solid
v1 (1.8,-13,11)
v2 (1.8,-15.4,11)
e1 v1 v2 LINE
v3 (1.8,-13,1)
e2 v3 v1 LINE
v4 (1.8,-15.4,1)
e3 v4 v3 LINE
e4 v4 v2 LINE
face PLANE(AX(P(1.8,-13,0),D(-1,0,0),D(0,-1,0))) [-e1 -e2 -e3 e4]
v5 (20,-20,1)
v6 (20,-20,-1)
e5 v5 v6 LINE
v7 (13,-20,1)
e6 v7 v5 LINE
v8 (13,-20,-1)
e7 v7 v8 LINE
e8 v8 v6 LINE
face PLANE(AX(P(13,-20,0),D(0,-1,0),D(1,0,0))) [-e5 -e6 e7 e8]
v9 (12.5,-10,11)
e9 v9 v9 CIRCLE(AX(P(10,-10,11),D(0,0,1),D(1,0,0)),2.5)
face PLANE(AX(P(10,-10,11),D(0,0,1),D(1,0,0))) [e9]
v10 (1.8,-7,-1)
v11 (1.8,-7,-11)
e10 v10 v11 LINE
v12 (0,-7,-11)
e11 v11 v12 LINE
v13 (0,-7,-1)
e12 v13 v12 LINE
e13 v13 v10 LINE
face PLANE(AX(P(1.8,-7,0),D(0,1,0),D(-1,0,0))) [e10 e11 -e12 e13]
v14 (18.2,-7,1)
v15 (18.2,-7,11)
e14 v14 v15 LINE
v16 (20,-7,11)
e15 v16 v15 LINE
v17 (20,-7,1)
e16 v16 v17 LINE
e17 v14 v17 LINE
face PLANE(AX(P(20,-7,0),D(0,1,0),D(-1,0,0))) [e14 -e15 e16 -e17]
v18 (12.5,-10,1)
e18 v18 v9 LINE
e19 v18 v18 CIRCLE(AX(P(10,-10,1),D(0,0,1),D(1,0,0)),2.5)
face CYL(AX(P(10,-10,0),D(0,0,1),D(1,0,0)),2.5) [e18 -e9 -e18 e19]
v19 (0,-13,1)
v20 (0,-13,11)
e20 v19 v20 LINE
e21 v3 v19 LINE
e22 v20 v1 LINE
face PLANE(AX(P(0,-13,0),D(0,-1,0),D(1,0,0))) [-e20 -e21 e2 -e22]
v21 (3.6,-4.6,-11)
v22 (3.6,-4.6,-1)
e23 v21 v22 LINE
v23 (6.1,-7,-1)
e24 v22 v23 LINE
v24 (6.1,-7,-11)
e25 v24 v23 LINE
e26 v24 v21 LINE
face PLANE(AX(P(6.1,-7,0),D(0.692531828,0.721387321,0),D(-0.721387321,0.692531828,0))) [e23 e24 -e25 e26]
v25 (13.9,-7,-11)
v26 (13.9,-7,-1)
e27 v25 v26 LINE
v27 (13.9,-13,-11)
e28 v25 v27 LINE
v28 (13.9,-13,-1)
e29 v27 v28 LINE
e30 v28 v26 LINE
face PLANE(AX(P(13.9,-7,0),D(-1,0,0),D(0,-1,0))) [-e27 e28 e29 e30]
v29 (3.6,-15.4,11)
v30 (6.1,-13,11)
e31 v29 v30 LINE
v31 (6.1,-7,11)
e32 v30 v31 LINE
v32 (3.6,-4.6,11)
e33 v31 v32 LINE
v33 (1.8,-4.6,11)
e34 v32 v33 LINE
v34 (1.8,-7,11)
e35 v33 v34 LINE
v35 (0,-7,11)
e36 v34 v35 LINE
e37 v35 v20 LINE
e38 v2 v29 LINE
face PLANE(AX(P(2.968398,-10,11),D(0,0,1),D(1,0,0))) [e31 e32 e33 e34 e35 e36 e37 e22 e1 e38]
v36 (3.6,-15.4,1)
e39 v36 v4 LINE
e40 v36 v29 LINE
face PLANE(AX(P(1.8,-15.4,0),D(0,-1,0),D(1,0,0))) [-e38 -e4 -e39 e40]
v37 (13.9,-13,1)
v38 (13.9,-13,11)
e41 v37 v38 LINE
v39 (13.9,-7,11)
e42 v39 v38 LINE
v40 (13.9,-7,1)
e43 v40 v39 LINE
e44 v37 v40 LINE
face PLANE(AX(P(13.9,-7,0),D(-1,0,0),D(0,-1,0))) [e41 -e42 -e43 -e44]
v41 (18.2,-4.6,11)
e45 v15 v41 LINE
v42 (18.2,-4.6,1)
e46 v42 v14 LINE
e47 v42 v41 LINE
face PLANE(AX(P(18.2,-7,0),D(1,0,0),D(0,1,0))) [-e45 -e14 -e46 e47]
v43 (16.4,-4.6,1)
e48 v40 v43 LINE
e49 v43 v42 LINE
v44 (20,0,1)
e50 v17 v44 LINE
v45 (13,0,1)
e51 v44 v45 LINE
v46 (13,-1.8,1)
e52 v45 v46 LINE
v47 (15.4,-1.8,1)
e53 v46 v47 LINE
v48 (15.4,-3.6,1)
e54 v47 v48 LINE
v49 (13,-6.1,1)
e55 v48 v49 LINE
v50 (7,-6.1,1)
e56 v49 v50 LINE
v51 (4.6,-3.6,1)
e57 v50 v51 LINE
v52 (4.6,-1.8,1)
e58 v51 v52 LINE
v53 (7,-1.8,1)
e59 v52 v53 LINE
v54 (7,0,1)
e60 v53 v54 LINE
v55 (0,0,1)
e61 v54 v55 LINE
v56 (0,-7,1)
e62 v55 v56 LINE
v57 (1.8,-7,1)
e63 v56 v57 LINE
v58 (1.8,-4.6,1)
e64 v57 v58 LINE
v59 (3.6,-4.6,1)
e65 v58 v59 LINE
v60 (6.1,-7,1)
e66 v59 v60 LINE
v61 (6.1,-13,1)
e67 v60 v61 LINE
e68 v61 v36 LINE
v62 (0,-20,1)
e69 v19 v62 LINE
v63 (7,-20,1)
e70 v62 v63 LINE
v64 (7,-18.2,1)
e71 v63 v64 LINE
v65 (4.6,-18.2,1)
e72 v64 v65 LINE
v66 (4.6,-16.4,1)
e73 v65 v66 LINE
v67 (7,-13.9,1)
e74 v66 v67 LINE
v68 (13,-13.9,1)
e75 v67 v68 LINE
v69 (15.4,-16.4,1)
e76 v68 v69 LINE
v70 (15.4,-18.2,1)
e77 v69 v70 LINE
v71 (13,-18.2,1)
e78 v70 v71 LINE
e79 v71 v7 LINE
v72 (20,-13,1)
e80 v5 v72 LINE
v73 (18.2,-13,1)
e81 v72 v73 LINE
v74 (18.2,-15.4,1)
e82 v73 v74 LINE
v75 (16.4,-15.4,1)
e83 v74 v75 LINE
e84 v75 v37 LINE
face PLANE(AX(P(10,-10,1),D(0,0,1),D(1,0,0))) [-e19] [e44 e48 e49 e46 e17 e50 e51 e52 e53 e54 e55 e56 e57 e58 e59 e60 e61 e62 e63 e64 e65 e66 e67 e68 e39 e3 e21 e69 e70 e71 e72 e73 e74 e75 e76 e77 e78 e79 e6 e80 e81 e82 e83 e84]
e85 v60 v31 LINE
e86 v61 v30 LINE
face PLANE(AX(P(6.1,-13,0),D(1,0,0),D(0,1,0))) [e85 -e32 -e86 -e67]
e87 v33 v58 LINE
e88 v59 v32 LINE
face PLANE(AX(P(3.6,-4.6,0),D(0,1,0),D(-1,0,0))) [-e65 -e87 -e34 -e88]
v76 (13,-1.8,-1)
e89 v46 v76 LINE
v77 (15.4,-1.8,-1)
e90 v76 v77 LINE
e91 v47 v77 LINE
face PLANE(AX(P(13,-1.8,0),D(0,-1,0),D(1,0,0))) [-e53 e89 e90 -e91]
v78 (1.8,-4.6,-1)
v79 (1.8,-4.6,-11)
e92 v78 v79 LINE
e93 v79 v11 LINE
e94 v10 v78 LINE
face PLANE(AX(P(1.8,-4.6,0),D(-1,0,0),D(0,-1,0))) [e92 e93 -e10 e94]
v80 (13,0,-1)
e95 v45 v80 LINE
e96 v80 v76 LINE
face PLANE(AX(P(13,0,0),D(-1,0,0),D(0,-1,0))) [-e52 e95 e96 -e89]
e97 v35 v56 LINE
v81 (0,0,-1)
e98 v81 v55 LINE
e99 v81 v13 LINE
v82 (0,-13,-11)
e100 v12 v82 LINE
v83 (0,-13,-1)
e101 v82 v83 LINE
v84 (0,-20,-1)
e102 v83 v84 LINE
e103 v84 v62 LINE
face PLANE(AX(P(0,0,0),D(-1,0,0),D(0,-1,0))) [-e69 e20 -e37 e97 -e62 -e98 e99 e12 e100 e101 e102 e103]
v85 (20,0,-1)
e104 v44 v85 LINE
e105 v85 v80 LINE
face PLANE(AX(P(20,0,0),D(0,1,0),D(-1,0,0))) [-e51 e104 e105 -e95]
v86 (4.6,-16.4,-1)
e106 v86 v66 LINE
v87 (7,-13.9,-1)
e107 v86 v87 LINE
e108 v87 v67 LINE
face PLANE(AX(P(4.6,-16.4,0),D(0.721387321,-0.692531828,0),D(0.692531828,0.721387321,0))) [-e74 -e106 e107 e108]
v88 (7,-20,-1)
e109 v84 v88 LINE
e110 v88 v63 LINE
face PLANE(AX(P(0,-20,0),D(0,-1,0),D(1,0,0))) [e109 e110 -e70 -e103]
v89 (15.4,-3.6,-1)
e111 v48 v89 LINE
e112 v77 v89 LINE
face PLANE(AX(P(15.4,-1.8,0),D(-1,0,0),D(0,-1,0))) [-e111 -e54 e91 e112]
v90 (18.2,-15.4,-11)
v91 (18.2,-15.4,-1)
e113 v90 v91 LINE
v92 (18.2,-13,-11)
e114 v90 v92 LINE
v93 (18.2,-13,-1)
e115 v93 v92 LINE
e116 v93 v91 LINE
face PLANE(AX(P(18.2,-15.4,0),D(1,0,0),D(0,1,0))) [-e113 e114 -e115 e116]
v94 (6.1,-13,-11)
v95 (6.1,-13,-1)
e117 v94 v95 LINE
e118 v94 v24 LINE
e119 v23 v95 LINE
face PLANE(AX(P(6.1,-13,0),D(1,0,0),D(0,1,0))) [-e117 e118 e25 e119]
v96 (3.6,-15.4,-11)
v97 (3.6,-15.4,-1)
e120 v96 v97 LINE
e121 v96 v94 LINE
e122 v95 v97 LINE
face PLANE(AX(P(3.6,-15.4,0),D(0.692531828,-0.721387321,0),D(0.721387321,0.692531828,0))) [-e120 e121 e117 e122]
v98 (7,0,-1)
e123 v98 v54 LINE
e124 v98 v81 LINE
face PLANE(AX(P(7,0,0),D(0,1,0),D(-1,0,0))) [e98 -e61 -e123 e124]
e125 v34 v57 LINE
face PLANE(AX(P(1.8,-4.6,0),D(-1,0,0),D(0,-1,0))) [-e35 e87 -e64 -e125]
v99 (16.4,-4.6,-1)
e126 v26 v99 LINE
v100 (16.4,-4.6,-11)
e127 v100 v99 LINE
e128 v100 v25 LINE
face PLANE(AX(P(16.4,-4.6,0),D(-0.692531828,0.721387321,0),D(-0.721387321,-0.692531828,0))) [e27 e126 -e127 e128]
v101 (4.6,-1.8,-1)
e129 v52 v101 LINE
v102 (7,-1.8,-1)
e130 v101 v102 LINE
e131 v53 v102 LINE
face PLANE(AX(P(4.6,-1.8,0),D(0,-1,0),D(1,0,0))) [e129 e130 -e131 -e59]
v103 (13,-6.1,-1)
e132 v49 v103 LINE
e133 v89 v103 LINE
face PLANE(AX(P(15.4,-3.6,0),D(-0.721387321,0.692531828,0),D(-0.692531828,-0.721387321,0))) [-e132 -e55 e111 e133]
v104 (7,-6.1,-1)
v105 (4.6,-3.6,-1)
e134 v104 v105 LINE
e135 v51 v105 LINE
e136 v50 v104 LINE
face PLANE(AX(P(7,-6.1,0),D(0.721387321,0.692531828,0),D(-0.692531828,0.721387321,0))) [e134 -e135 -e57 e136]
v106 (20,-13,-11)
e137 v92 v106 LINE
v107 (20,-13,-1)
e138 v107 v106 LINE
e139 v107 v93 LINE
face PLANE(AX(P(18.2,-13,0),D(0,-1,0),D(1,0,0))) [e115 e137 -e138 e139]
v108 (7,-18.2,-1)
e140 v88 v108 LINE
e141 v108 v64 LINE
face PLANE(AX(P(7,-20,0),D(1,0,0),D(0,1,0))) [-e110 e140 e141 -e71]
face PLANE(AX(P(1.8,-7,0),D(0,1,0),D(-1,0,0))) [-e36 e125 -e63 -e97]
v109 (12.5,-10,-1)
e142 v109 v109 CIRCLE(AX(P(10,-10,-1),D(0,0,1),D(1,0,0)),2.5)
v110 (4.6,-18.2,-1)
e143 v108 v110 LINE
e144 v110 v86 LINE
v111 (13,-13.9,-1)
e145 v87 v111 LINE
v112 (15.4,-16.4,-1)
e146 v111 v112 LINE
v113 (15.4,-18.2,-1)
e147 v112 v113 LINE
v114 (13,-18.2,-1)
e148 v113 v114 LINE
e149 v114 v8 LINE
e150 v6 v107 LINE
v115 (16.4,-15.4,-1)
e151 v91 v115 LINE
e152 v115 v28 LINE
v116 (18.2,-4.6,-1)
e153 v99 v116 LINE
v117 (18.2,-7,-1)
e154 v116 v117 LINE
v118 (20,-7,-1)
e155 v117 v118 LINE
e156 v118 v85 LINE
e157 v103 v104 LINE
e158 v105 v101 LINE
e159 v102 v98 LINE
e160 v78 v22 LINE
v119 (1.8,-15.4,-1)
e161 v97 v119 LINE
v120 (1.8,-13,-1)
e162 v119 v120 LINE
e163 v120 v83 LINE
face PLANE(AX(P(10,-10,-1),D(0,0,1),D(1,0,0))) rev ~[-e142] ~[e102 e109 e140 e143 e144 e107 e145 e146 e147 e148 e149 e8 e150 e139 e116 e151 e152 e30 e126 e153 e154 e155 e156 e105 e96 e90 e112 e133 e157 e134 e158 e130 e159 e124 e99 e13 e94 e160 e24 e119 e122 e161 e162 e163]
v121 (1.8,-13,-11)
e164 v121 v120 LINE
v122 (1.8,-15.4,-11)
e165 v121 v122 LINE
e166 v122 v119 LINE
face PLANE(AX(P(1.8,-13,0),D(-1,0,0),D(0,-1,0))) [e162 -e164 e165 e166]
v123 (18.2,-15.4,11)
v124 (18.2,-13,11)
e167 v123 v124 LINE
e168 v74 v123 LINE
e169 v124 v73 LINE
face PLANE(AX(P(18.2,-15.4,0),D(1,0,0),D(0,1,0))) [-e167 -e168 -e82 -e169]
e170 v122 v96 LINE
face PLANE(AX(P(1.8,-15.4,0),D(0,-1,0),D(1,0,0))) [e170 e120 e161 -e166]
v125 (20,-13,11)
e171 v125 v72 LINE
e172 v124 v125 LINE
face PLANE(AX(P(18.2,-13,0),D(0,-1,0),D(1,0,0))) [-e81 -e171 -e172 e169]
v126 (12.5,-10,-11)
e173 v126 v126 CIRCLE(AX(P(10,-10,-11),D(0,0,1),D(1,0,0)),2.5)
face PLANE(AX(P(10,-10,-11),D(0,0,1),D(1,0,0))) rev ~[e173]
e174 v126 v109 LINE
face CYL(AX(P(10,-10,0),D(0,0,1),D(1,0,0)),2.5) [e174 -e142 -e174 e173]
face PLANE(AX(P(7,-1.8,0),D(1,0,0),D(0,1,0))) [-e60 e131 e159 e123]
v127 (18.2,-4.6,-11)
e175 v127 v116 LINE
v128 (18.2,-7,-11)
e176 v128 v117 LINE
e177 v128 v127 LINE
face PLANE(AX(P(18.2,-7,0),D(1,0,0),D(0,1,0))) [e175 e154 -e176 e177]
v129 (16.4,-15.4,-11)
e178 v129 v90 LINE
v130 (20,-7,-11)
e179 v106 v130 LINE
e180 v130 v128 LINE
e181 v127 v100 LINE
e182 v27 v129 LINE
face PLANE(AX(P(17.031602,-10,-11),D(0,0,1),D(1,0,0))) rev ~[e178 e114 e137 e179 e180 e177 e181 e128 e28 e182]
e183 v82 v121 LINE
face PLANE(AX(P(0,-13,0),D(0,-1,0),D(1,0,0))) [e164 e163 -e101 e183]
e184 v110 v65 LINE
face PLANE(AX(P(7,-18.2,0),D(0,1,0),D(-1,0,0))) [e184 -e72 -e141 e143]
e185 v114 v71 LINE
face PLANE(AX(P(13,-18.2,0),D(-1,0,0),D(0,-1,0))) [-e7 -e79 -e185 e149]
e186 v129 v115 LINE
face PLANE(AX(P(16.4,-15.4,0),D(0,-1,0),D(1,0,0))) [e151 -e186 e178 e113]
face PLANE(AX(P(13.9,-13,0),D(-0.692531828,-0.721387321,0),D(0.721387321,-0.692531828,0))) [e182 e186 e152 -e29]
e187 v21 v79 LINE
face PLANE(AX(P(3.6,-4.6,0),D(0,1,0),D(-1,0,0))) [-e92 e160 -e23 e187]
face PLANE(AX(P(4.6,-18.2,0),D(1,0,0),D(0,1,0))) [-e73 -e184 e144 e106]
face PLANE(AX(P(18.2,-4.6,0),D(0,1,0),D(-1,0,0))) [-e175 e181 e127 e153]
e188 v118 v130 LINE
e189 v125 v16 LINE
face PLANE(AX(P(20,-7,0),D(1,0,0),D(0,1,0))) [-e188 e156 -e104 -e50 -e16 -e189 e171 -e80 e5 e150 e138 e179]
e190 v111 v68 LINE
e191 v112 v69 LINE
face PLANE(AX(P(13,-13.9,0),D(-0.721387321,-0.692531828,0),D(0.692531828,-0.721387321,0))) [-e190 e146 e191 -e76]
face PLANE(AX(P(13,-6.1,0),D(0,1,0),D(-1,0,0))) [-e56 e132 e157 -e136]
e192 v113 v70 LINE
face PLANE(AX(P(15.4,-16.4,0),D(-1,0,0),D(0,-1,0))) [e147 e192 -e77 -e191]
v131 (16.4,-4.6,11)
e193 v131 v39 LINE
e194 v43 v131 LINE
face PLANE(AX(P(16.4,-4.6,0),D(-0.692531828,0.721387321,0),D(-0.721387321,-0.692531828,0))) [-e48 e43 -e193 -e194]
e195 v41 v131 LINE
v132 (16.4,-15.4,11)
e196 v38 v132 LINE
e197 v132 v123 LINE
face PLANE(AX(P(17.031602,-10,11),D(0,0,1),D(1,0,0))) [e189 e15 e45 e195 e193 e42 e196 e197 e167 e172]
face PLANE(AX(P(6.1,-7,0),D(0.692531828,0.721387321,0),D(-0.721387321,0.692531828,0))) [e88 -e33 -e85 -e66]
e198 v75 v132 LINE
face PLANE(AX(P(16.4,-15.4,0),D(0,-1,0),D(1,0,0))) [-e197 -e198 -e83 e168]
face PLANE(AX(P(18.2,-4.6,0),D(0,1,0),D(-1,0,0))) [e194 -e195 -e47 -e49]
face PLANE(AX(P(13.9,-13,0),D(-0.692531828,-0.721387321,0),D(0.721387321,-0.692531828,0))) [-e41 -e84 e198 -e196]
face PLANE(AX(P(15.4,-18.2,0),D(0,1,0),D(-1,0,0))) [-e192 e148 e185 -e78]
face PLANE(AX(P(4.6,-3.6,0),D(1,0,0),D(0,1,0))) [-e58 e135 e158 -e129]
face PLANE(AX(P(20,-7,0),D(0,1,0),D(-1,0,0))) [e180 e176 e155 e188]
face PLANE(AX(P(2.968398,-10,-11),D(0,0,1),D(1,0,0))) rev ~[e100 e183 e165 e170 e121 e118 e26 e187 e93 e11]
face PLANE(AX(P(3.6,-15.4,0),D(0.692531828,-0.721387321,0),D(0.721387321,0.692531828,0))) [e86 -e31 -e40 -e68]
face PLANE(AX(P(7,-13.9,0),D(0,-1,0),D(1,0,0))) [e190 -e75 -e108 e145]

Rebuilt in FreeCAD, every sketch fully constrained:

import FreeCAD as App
import Part
import Sketcher

V = App.Vector


def add_polygon(sketch, points):
    """Adds a closed chain of lines whose ends are joined by coincident constraints."""
    first, n = sketch.GeometryCount, len(points)
    for a, b in zip(points, points[1:] + points[:1]):
        sketch.addGeometry(Part.LineSegment(App.Vector(*a, 0), App.Vector(*b, 0)), False)
    for i in range(n):
        sketch.addConstraint(Sketcher.Constraint("Coincident", first + i, 2, first + (i + 1) % n, 1))

doc = App.newDocument("Part")
body = doc.addObject("PartDesign::Body", "Body")

# Sketch on XY plane
sketch1 = doc.addObject("Sketcher::SketchObject", "Sketch")
body.addObject(sketch1)
sketch1.AttachmentSupport = (doc.XY_Plane, [""])
sketch1.MapMode = "FlatFace"
add_polygon(sketch1, [(0, -7), (0, -13), (1.8, -13), (1.8, -15.4), (3.6, -15.4), (6.1, -13), (6.1, -7), (3.6, -4.6), (1.8, -4.6), (1.8, -7)])  # lines 0-9
sketch1.addConstraint([
    Sketcher.Constraint("Vertical", 0),
    Sketcher.Constraint("Horizontal", 1),
    Sketcher.Constraint("Vertical", 2),
    Sketcher.Constraint("Horizontal", 3),
    Sketcher.Constraint("Vertical", 5),
    Sketcher.Constraint("Horizontal", 7),
    Sketcher.Constraint("Vertical", 8),
    Sketcher.Constraint("Horizontal", 9),
    Sketcher.Constraint("PointOnObject", 0, 2, -2),
    Sketcher.Constraint("Horizontal", 1, 2, 4, 2),
    Sketcher.Constraint("Horizontal", 5, 2, 8, 2),
    Sketcher.Constraint("Vertical", 3, 2, 6, 2),
    Sketcher.Constraint("Vertical", 2, 2, 7, 2),
    Sketcher.Constraint("Equal", 1, 3),
    Sketcher.Constraint("Equal", 2, 8),
    Sketcher.Constraint("DistanceY", 0, 2, 0, 1, 6.0),
    Sketcher.Constraint("DistanceX", 1, 1, 1, 2, 1.8),
    Sketcher.Constraint("DistanceY", 2, 2, 2, 1, 2.4),
    Sketcher.Constraint("DistanceY", 0, 2, -1, 1, 13.0),
    Sketcher.Constraint("DistanceX", -1, 1, 4, 2, 6.1),
])
pad1 = doc.addObject("PartDesign::Pad", "Pad")
body.addObject(pad1)
pad1.Profile = sketch1
pad1.Length = 22
pad1.Midplane = True
body2 = doc.addObject("PartDesign::Body", "Body001")

# Sketch on XY plane
sketch2 = doc.addObject("Sketcher::SketchObject", "Sketch001")
body2.addObject(sketch2)
sketch2.AttachmentSupport = (doc.getObject("XY_Plane001"), [""])
sketch2.MapMode = "FlatFace"
add_polygon(sketch2, [(20, -7), (18.2, -7), (18.2, -4.6), (16.4, -4.6), (13.9, -7), (13.9, -13), (16.4, -15.4), (18.2, -15.4), (18.2, -13), (20, -13)])  # lines 0-9
sketch2.addConstraint([
    Sketcher.Constraint("Horizontal", 0),
    Sketcher.Constraint("Vertical", 1),
    Sketcher.Constraint("Horizontal", 2),
    Sketcher.Constraint("Vertical", 4),
    Sketcher.Constraint("Horizontal", 6),
    Sketcher.Constraint("Vertical", 7),
    Sketcher.Constraint("Horizontal", 8),
    Sketcher.Constraint("Vertical", 9),
    Sketcher.Constraint("Horizontal", 0, 2, 3, 2),
    Sketcher.Constraint("Horizontal", 4, 2, 7, 2),
    Sketcher.Constraint("Vertical", 2, 2, 5, 2),
    Sketcher.Constraint("Vertical", 1, 2, 6, 2),
    Sketcher.Constraint("Equal", 0, 2),
    Sketcher.Constraint("Equal", 1, 7),
    Sketcher.Constraint("DistanceY", 4, 2, 4, 1, 6.0),
    Sketcher.Constraint("DistanceX", 0, 2, 0, 1, 1.8),
    Sketcher.Constraint("DistanceY", 1, 1, 1, 2, 2.4),
    Sketcher.Constraint("DistanceY", 0, 2, -1, 1, 7.0),
    Sketcher.Constraint("DistanceX", -1, 1, 8, 2, 20.0),
    Sketcher.Constraint("DistanceX", -1, 1, 3, 2, 13.9),
])
pad2 = doc.addObject("PartDesign::Pad", "Pad001")
body2.addObject(pad2)
pad2.Profile = sketch2
pad2.Length = 22
pad2.Midplane = True
body3 = doc.addObject("PartDesign::Body", "Body002")

# Sketch on XY plane
sketch3 = doc.addObject("Sketcher::SketchObject", "Sketch002")
body3.addObject(sketch3)
sketch3.AttachmentSupport = (doc.getObject("XY_Plane002"), [""])
sketch3.MapMode = "FlatFace"
sketch3.addGeometry(Part.Circle(V(10, -10, 0), V(0, 0, 1), 2.5), False)
sketch3.addConstraint([
    Sketcher.Constraint("Diameter", 0, 5.0),
    Sketcher.Constraint("DistanceX", -1, 1, 0, 3, 10.0),
    Sketcher.Constraint("DistanceY", 0, 3, -1, 1, 10.0),
])
pad3 = doc.addObject("PartDesign::Pad", "Pad002")
body3.addObject(pad3)
pad3.Profile = sketch3
pad3.Length = 22
pad3.Midplane = True
body.AllowCompound = True
doc.recompute()

boolean = doc.addObject("PartDesign::Boolean", "Boolean")
body.addObject(boolean)
boolean.Type = "Fuse"
boolean.addObjects([body2])
doc.recompute()

boolean2 = doc.addObject("PartDesign::Boolean", "Boolean001")
body.addObject(boolean2)
boolean2.Type = "Fuse"
boolean2.addObjects([body3])

# Sketch on XY plane
sketch4 = doc.addObject("Sketcher::SketchObject", "Sketch003")
body.addObject(sketch4)
sketch4.AttachmentSupport = (doc.XY_Plane, [""])
sketch4.MapMode = "FlatFace"
add_polygon(sketch4, [(7, -1.8), (7, 0), (0, 0), (0, -7), (1.8, -7), (1.8, -4.6), (3.6, -4.6), (6.1, -7), (6.1, -13), (3.6, -15.4), (1.8, -15.4), (1.8, -13), (0, -13), (0, -20), (7, -20), (7, -18.2), (4.6, -18.2), (4.6, -16.4), (7, -13.9), (13, -13.9), (15.4, -16.4), (15.4, -18.2), (13, -18.2), (13, -20), (20, -20), (20, -13), (18.2, -13), (18.2, -15.4), (16.4, -15.4), (13.9, -13), (13.9, -7), (16.4, -4.6), (18.2, -4.6), (18.2, -7), (20, -7), (20, 0), (13, 0), (13, -1.8), (15.4, -1.8), (15.4, -3.6), (13, -6.1), (7, -6.1), (4.6, -3.6), (4.6, -1.8)])  # lines 0-43
sketch4.addGeometry(Part.Circle(V(10, -10, 0), V(0, 0, 1), 2.5), False)  # 44
sketch4.addConstraint([
    Sketcher.Constraint("Vertical", 0),
    Sketcher.Constraint("Horizontal", 1),
    Sketcher.Constraint("Vertical", 2),
    Sketcher.Constraint("Horizontal", 3),
    Sketcher.Constraint("Vertical", 4),
    Sketcher.Constraint("Horizontal", 5),
    Sketcher.Constraint("Vertical", 7),
    Sketcher.Constraint("Horizontal", 9),
    Sketcher.Constraint("Vertical", 10),
    Sketcher.Constraint("Horizontal", 11),
    Sketcher.Constraint("Vertical", 12),
    Sketcher.Constraint("Horizontal", 13),
    Sketcher.Constraint("Vertical", 14),
    Sketcher.Constraint("Horizontal", 15),
    Sketcher.Constraint("Vertical", 16),
    Sketcher.Constraint("Horizontal", 18),
    Sketcher.Constraint("Vertical", 20),
    Sketcher.Constraint("Horizontal", 21),
    Sketcher.Constraint("Vertical", 22),
    Sketcher.Constraint("Horizontal", 23),
    Sketcher.Constraint("Vertical", 24),
    Sketcher.Constraint("Horizontal", 25),
    Sketcher.Constraint("Vertical", 26),
    Sketcher.Constraint("Horizontal", 27),
    Sketcher.Constraint("Vertical", 29),
    Sketcher.Constraint("Horizontal", 31),
    Sketcher.Constraint("Vertical", 32),
    Sketcher.Constraint("Horizontal", 33),
    Sketcher.Constraint("Vertical", 34),
    Sketcher.Constraint("Horizontal", 35),
    Sketcher.Constraint("Vertical", 36),
    Sketcher.Constraint("Horizontal", 37),
    Sketcher.Constraint("Vertical", 38),
    Sketcher.Constraint("Horizontal", 40),
    Sketcher.Constraint("Vertical", 42),
    Sketcher.Constraint("Horizontal", 43),
    Sketcher.Constraint("Coincident", 1, 2, -1, 1),
    Sketcher.Constraint("PointOnObject", 11, 2, -2),
    Sketcher.Constraint("PointOnObject", 34, 2, -1),
    Sketcher.Constraint("Perpendicular", 6, 17),
    Sketcher.Constraint("Perpendicular", 8, 19),
    Sketcher.Constraint("Perpendicular", 17, 28),
    Sketcher.Constraint("Perpendicular", 19, 30),
    Sketcher.Constraint("Perpendicular", 28, 39),
    Sketcher.Constraint("Perpendicular", 30, 41),
    Sketcher.Constraint("Horizontal", 3, 2, 6, 2),
    Sketcher.Constraint("Horizontal", 7, 2, 10, 2),
    Sketcher.Constraint("Horizontal", 16, 2, 19, 2),
    Sketcher.Constraint("Horizontal", 15, 2, 20, 2),
    Sketcher.Constraint("Horizontal", 13, 2, 22, 2),
    Sketcher.Constraint("Horizontal", 11, 2, 24, 2),
    Sketcher.Constraint("Horizontal", 9, 2, 26, 2),
    Sketcher.Constraint("Horizontal", 25, 2, 28, 2),
    Sketcher.Constraint("Horizontal", 6, 2, 29, 2),
    Sketcher.Constraint("Horizontal", 5, 2, 30, 2),
    Sketcher.Constraint("Horizontal", 29, 2, 32, 2),
    Sketcher.Constraint("Horizontal", 38, 2, 41, 2),
    Sketcher.Constraint("Horizontal", 37, 2, 42, 2),
    Sketcher.Constraint("Vertical", 5, 2, 8, 2),
    Sketcher.Constraint("Vertical", 4, 2, 9, 2),
    Sketcher.Constraint("Vertical", 0, 2, 13, 2),
    Sketcher.Constraint("Vertical", 14, 2, 17, 2),
    Sketcher.Constraint("Vertical", 18, 2, 21, 2),
    Sketcher.Constraint("Vertical", 27, 2, 30, 2),
    Sketcher.Constraint("Vertical", 26, 2, 31, 2),
    Sketcher.Constraint("Vertical", 24, 2, 33, 2),
    Sketcher.Constraint("Vertical", 22, 2, 35, 2),
    Sketcher.Constraint("Vertical", 20, 2, 37, 2),
    Sketcher.Constraint("Vertical", 36, 2, 39, 2),
    Sketcher.Constraint("Vertical", 17, 2, 40, 2),
    Sketcher.Constraint("Equal", 3, 5),
    Sketcher.Constraint("Equal", 13, 23),
    Sketcher.Constraint("Equal", 11, 25),
    Sketcher.Constraint("Equal", 25, 27),
    Sketcher.Constraint("Equal", 33, 0),
    Sketcher.Constraint("Equal", 35, 2),
    Sketcher.Constraint("Equal", 43, 4),
    Sketcher.Constraint("Equal", 40, 7),
    Sketcher.Constraint("Equal", 2, 12),
    Sketcher.Constraint("Equal", 0, 14),
    Sketcher.Constraint("Equal", 14, 16),
    Sketcher.Constraint("Equal", 36, 38),
    Sketcher.Constraint("Diameter", 44, 5.0),
    Sketcher.Constraint("DistanceX", 1, 2, 1, 1, 7.0),
    Sketcher.Constraint("DistanceX", 18, 1, 18, 2, 6.0),
    Sketcher.Constraint("DistanceX", 3, 1, 3, 2, 1.8),
    Sketcher.Constraint("DistanceX", 15, 2, 15, 1, 2.4),
    Sketcher.Constraint("DistanceX", -1, 1, 44, 3, 10.0),
    Sketcher.Constraint("DistanceY", 44, 3, -1, 1, 10.0),
    Sketcher.Constraint("DistanceX", -1, 1, 6, 2, 6.1),
])
pad4 = doc.addObject("PartDesign::Pad", "Pad003")
body.addObject(pad4)
pad4.Profile = sketch4
pad4.Length = 2
pad4.Midplane = True

doc.recompute()
